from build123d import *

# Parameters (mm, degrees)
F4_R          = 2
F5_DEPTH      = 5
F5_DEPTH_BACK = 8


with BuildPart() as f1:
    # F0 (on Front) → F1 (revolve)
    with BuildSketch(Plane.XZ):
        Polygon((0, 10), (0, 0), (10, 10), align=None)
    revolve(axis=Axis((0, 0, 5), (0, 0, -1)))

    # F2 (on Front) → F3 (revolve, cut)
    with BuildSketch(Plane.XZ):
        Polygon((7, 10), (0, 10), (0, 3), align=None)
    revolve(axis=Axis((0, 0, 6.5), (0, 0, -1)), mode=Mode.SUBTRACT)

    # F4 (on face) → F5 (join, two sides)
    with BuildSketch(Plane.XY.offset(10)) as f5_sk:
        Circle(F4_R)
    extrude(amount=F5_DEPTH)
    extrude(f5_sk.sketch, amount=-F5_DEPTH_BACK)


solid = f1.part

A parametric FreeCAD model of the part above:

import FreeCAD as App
import Part
import Sketcher
from FreeCAD import Vector


def add_polygon(sketch, points):
    """Adds a closed chain of lines whose ends are joined by coincident constraints."""
    first, n = sketch.GeometryCount, len(points)
    for a, b in zip(points, points[1:] + points[:1]):
        sketch.addGeometry(Part.LineSegment(App.Vector(*a, 0), App.Vector(*b, 0)), False)
    for i in range(n):
        sketch.addConstraint(Sketcher.Constraint("Coincident", first + i, 2, first + (i + 1) % n, 1))

doc = App.newDocument("Part")
body = doc.addObject("PartDesign::Body", "Body")

sketch1 = body.newObject("Sketcher::SketchObject", "Sketch")
sketch1.AttachmentSupport = (doc.getObject("XZ_Plane"), [""])
sketch1.MapMode = "FlatFace"
add_polygon(sketch1, [(0, 10), (0, 0), (10, 10)])
sketch1.addConstraint([
    Sketcher.Constraint("Vertical", 0),
    Sketcher.Constraint("Horizontal", 2),
    Sketcher.Constraint("Coincident", 0, 2, -1, 1),
    Sketcher.Constraint("Equal", 2, 0),
    Sketcher.Constraint("DistanceX", 2, 2, 2, 1, 10.0),
])
revolution = body.newObject("PartDesign::Revolution", "Revolution")
revolution.Profile = sketch1
revolution.ReferenceAxis = (sketch1, ["V_Axis"])
revolution.Angle = 360

sketch2 = body.newObject("Sketcher::SketchObject", "Sketch001")
sketch2.AttachmentSupport = (doc.getObject("XZ_Plane"), [""])
sketch2.MapMode = "FlatFace"
add_polygon(sketch2, [(7, 10), (0, 10), (0, 3)])
sketch2.addConstraint([
    Sketcher.Constraint("Horizontal", 0),
    Sketcher.Constraint("Vertical", 1),
    Sketcher.Constraint("PointOnObject", 0, 2, -2),
    Sketcher.Constraint("Equal", 0, 1),
    Sketcher.Constraint("DistanceX", 0, 2, 0, 1, 7.0),
    Sketcher.Constraint("DistanceY", -1, 1, 0, 2, 10.0),
])
groove = body.newObject("PartDesign::Groove", "Groove")
groove.Profile = sketch2
groove.ReferenceAxis = (sketch2, ["V_Axis"])
groove.Angle = 360

sketch3 = body.newObject("Sketcher::SketchObject", "Sketch002")
sketch3.AttachmentSupport = (doc.getObject("XY_Plane"), [""])
sketch3.MapMode = "FlatFace"
sketch3.AttachmentOffset = App.Placement(Vector(0, 0, 10), App.Rotation())
sketch3.addGeometry(Part.Circle(Vector(0, 0, 0), Vector(0, 0, 1), 2), False)
sketch3.addConstraint([
    Sketcher.Constraint("Coincident", 0, 3, -1, 1),
    Sketcher.Constraint("Diameter", 0, 4.0),
])
pad1 = body.newObject("PartDesign::Pad", "Pad")
pad1.Profile = sketch3
pad1.Type = "TwoLengths"
pad1.Length = 5
pad1.Length2 = 8

doc.recompute()
